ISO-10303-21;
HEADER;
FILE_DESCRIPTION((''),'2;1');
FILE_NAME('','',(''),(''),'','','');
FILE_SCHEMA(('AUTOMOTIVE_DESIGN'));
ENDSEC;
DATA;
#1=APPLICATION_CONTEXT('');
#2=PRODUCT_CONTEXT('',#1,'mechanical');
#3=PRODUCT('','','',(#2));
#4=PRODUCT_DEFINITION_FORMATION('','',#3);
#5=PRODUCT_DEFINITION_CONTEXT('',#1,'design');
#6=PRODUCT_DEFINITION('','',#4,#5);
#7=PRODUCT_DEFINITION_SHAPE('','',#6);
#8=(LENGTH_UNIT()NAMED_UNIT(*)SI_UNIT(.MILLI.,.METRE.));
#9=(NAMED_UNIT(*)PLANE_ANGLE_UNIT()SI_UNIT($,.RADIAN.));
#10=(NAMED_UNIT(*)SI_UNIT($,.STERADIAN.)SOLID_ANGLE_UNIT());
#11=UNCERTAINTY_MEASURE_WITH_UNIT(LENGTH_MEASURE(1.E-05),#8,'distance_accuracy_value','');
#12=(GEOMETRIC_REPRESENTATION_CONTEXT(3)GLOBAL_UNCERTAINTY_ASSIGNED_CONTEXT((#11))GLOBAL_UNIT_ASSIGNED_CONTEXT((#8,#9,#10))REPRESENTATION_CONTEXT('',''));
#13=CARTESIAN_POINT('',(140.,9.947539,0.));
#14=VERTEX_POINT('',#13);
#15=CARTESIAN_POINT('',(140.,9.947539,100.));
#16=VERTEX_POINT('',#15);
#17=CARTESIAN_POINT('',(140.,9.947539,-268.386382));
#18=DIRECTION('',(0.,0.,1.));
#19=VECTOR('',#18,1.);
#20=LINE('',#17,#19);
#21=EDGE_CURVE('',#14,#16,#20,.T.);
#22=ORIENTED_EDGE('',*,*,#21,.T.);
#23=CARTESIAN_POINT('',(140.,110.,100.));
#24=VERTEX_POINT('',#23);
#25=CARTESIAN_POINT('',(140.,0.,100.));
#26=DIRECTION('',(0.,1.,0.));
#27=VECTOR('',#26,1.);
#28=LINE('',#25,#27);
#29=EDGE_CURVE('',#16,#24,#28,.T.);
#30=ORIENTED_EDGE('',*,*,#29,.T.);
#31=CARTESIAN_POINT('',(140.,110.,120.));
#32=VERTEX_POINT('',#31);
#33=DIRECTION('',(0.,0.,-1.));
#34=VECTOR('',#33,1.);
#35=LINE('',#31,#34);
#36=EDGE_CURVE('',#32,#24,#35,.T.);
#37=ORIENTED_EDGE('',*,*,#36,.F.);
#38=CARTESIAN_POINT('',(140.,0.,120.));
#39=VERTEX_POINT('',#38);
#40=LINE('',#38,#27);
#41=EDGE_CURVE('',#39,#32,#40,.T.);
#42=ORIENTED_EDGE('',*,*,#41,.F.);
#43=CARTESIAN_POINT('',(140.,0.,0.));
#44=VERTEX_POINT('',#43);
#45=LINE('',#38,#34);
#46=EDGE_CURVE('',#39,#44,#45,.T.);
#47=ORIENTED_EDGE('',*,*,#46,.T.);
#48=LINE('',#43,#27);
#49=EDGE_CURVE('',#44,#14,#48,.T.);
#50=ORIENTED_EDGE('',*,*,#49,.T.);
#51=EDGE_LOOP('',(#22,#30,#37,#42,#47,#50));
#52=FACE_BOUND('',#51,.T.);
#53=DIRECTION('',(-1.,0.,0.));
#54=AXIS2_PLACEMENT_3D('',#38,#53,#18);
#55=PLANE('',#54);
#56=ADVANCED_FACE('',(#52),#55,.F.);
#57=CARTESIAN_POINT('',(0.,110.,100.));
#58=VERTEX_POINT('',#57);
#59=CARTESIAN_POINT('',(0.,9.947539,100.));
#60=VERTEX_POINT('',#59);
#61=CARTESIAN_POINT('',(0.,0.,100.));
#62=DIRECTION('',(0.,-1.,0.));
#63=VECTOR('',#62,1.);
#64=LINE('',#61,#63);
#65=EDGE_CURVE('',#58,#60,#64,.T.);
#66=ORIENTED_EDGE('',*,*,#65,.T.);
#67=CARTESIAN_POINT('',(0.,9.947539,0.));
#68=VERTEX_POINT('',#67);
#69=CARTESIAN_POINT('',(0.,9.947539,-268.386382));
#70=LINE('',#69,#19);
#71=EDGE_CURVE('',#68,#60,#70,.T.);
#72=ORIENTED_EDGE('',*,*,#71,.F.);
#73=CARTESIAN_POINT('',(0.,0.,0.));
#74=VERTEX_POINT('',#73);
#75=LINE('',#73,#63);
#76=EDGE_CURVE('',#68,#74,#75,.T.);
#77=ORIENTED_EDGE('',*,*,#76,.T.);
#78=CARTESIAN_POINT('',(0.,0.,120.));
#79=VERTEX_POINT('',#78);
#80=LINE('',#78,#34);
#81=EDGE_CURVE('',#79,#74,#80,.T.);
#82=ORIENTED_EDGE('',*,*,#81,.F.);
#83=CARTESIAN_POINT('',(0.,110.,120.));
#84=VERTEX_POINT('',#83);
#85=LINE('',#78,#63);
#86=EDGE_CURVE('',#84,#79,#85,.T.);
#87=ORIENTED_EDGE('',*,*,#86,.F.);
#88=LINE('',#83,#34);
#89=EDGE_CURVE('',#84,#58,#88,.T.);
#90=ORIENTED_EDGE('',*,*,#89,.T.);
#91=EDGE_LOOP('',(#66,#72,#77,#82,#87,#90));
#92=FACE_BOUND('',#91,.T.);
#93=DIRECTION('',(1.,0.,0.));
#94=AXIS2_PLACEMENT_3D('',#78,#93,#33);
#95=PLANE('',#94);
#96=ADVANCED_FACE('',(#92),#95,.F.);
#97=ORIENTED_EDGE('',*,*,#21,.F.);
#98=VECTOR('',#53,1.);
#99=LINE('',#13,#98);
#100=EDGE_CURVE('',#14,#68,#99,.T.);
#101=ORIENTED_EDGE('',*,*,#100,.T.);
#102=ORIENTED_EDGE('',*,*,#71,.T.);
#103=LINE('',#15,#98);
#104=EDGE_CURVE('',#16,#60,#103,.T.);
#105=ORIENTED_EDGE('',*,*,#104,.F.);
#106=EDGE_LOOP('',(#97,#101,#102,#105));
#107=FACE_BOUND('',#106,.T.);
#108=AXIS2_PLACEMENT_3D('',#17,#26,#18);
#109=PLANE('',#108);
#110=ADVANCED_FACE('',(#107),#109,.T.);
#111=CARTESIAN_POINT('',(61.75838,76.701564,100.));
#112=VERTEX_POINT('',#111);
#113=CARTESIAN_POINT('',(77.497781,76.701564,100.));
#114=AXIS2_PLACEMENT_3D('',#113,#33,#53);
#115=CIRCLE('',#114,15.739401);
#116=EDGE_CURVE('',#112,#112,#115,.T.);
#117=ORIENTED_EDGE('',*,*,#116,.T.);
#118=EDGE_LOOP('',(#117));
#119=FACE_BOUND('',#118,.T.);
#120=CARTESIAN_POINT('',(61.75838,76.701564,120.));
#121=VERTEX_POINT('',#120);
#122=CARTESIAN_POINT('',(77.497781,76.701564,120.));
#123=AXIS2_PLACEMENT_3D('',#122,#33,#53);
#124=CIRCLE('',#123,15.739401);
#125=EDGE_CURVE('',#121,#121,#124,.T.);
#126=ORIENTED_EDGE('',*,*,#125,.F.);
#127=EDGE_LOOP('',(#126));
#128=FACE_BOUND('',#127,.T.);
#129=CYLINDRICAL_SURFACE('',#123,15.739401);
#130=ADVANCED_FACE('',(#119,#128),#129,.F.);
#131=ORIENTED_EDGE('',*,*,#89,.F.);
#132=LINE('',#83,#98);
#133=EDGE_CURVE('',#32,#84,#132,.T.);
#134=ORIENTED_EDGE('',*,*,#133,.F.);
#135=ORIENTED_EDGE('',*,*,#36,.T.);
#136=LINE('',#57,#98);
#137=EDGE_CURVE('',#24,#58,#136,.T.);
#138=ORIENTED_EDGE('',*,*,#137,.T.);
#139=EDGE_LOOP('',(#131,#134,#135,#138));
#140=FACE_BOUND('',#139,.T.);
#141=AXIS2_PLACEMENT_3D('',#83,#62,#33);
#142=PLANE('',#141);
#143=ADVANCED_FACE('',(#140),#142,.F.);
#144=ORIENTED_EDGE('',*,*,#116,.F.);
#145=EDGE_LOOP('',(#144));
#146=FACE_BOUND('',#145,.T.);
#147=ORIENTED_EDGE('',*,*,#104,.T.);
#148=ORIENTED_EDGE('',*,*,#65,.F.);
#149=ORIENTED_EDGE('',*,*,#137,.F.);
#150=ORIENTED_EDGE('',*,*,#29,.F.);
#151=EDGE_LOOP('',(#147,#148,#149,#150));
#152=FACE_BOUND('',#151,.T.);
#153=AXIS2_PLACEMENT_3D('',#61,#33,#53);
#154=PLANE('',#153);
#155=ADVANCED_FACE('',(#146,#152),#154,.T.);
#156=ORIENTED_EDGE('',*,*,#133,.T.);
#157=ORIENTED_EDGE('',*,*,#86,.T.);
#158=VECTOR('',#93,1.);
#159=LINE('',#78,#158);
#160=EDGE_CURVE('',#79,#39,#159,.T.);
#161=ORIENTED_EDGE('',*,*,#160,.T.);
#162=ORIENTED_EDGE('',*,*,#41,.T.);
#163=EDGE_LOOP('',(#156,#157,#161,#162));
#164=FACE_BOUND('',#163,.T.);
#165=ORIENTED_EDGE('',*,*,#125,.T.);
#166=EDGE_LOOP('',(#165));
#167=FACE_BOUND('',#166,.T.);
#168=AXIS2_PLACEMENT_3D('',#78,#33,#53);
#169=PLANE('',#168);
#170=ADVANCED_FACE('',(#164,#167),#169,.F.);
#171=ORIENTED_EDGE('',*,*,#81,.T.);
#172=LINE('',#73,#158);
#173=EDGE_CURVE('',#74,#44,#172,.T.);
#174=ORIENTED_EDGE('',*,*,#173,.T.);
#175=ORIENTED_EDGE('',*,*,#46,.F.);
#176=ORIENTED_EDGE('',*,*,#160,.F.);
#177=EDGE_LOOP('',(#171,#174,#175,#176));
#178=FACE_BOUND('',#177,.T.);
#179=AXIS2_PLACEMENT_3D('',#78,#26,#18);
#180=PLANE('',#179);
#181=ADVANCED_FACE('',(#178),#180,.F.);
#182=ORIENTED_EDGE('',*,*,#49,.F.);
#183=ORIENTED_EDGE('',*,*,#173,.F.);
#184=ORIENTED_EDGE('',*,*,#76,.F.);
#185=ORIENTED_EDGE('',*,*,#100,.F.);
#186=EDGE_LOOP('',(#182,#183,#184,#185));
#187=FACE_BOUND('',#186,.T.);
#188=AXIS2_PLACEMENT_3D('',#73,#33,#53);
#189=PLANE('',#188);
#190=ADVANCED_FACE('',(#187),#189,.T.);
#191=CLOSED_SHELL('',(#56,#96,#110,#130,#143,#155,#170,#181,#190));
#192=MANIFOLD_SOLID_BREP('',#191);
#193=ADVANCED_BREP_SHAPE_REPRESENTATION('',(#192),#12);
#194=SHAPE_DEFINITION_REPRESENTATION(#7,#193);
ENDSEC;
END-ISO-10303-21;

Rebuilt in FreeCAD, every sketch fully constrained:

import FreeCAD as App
import Part
import Sketcher


def add_polygon(sketch, points):
    """Adds a closed chain of lines whose ends are joined by coincident constraints."""
    first, n = sketch.GeometryCount, len(points)
    for a, b in zip(points, points[1:] + points[:1]):
        sketch.addGeometry(Part.LineSegment(App.Vector(*a, 0), App.Vector(*b, 0)), False)
    for i in range(n):
        sketch.addConstraint(Sketcher.Constraint("Coincident", first + i, 2, first + (i + 1) % n, 1))

doc = App.newDocument("Part")
body = doc.addObject("PartDesign::Body", "Body")

# Sketch on XY plane
sketch1 = body.newObject("Sketcher::SketchObject", "Sketch")
sketch1.AttachmentSupport = (doc.getObject("XY_Plane"), [""])
sketch1.MapMode = "FlatFace"
add_polygon(sketch1, [(0, 110), (0, 0), (140, 0), (140, 110)])  # lines 0-3
sketch1.addConstraint([
    Sketcher.Constraint("Vertical", 0),
    Sketcher.Constraint("Horizontal", 1),
    Sketcher.Constraint("Vertical", 2),
    Sketcher.Constraint("Horizontal", 3),
    Sketcher.Constraint("Coincident", 0, 2, -1, 1),
    Sketcher.Constraint("DistanceX", 1, 1, 1, 2, 140.0),
    Sketcher.Constraint("DistanceY", 0, 2, 0, 1, 110.0),
])
pad1 = body.newObject("PartDesign::Pad", "Pad")
pad1.Profile = sketch1
pad1.Length = 120

# Sketch on XY plane
sketch2 = body.newObject("Sketcher::SketchObject", "Sketch001")
sketch2.AttachmentSupport = (doc.getObject("XY_Plane"), [""])
sketch2.MapMode = "FlatFace"
add_polygon(sketch2, [(494.154006, 9.947539), (-354.154006, 9.947539), (-354.154006, 718.255551), (494.154006, 718.255551)])  # lines 0-3
sketch2.addConstraint([
    Sketcher.Constraint("Horizontal", 0),
    Sketcher.Constraint("Vertical", 1),
    Sketcher.Constraint("Horizontal", 2),
    Sketcher.Constraint("Vertical", 3),
    Sketcher.Constraint("DistanceX", 0, 2, 0, 1, 848.308012),
    Sketcher.Constraint("DistanceY", 1, 1, 1, 2, 708.308012),
    Sketcher.Constraint("DistanceY", -1, 1, 0, 2, 9.947539),
    Sketcher.Constraint("DistanceX", 0, 2, -1, 1, 354.154006),
])
pocket1 = body.newObject("PartDesign::Pocket", "Pocket")
pocket1.Profile = sketch2
pocket1.Type = "TwoLengths"
pocket1.Length = 215.709106
pocket1.Length2 = 100

# Sketch on XY plane
sketch3 = body.newObject("Sketcher::SketchObject", "Sketch002")
sketch3.AttachmentSupport = (doc.getObject("XY_Plane"), [""])
sketch3.MapMode = "FlatFace"
sketch3.AttachmentOffset = App.Placement(App.Vector(0, 0, 100), App.Rotation())
sketch3.addGeometry(Part.Circle(App.Vector(77.497781, 76.701564, 0), App.Vector(0, 0, 1), 15.739401), False)
sketch3.addConstraint([
    Sketcher.Constraint("Diameter", 0, 31.478802),
    Sketcher.Constraint("DistanceX", -1, 1, 0, 3, 77.497781),
    Sketcher.Constraint("DistanceY", -1, 1, 0, 3, 76.701564),
])
pocket2 = body.newObject("PartDesign::Pocket", "Pocket001")
pocket2.Profile = sketch3
pocket2.Type = "ThroughAll"
pocket2.Reversed = True

doc.recompute()
